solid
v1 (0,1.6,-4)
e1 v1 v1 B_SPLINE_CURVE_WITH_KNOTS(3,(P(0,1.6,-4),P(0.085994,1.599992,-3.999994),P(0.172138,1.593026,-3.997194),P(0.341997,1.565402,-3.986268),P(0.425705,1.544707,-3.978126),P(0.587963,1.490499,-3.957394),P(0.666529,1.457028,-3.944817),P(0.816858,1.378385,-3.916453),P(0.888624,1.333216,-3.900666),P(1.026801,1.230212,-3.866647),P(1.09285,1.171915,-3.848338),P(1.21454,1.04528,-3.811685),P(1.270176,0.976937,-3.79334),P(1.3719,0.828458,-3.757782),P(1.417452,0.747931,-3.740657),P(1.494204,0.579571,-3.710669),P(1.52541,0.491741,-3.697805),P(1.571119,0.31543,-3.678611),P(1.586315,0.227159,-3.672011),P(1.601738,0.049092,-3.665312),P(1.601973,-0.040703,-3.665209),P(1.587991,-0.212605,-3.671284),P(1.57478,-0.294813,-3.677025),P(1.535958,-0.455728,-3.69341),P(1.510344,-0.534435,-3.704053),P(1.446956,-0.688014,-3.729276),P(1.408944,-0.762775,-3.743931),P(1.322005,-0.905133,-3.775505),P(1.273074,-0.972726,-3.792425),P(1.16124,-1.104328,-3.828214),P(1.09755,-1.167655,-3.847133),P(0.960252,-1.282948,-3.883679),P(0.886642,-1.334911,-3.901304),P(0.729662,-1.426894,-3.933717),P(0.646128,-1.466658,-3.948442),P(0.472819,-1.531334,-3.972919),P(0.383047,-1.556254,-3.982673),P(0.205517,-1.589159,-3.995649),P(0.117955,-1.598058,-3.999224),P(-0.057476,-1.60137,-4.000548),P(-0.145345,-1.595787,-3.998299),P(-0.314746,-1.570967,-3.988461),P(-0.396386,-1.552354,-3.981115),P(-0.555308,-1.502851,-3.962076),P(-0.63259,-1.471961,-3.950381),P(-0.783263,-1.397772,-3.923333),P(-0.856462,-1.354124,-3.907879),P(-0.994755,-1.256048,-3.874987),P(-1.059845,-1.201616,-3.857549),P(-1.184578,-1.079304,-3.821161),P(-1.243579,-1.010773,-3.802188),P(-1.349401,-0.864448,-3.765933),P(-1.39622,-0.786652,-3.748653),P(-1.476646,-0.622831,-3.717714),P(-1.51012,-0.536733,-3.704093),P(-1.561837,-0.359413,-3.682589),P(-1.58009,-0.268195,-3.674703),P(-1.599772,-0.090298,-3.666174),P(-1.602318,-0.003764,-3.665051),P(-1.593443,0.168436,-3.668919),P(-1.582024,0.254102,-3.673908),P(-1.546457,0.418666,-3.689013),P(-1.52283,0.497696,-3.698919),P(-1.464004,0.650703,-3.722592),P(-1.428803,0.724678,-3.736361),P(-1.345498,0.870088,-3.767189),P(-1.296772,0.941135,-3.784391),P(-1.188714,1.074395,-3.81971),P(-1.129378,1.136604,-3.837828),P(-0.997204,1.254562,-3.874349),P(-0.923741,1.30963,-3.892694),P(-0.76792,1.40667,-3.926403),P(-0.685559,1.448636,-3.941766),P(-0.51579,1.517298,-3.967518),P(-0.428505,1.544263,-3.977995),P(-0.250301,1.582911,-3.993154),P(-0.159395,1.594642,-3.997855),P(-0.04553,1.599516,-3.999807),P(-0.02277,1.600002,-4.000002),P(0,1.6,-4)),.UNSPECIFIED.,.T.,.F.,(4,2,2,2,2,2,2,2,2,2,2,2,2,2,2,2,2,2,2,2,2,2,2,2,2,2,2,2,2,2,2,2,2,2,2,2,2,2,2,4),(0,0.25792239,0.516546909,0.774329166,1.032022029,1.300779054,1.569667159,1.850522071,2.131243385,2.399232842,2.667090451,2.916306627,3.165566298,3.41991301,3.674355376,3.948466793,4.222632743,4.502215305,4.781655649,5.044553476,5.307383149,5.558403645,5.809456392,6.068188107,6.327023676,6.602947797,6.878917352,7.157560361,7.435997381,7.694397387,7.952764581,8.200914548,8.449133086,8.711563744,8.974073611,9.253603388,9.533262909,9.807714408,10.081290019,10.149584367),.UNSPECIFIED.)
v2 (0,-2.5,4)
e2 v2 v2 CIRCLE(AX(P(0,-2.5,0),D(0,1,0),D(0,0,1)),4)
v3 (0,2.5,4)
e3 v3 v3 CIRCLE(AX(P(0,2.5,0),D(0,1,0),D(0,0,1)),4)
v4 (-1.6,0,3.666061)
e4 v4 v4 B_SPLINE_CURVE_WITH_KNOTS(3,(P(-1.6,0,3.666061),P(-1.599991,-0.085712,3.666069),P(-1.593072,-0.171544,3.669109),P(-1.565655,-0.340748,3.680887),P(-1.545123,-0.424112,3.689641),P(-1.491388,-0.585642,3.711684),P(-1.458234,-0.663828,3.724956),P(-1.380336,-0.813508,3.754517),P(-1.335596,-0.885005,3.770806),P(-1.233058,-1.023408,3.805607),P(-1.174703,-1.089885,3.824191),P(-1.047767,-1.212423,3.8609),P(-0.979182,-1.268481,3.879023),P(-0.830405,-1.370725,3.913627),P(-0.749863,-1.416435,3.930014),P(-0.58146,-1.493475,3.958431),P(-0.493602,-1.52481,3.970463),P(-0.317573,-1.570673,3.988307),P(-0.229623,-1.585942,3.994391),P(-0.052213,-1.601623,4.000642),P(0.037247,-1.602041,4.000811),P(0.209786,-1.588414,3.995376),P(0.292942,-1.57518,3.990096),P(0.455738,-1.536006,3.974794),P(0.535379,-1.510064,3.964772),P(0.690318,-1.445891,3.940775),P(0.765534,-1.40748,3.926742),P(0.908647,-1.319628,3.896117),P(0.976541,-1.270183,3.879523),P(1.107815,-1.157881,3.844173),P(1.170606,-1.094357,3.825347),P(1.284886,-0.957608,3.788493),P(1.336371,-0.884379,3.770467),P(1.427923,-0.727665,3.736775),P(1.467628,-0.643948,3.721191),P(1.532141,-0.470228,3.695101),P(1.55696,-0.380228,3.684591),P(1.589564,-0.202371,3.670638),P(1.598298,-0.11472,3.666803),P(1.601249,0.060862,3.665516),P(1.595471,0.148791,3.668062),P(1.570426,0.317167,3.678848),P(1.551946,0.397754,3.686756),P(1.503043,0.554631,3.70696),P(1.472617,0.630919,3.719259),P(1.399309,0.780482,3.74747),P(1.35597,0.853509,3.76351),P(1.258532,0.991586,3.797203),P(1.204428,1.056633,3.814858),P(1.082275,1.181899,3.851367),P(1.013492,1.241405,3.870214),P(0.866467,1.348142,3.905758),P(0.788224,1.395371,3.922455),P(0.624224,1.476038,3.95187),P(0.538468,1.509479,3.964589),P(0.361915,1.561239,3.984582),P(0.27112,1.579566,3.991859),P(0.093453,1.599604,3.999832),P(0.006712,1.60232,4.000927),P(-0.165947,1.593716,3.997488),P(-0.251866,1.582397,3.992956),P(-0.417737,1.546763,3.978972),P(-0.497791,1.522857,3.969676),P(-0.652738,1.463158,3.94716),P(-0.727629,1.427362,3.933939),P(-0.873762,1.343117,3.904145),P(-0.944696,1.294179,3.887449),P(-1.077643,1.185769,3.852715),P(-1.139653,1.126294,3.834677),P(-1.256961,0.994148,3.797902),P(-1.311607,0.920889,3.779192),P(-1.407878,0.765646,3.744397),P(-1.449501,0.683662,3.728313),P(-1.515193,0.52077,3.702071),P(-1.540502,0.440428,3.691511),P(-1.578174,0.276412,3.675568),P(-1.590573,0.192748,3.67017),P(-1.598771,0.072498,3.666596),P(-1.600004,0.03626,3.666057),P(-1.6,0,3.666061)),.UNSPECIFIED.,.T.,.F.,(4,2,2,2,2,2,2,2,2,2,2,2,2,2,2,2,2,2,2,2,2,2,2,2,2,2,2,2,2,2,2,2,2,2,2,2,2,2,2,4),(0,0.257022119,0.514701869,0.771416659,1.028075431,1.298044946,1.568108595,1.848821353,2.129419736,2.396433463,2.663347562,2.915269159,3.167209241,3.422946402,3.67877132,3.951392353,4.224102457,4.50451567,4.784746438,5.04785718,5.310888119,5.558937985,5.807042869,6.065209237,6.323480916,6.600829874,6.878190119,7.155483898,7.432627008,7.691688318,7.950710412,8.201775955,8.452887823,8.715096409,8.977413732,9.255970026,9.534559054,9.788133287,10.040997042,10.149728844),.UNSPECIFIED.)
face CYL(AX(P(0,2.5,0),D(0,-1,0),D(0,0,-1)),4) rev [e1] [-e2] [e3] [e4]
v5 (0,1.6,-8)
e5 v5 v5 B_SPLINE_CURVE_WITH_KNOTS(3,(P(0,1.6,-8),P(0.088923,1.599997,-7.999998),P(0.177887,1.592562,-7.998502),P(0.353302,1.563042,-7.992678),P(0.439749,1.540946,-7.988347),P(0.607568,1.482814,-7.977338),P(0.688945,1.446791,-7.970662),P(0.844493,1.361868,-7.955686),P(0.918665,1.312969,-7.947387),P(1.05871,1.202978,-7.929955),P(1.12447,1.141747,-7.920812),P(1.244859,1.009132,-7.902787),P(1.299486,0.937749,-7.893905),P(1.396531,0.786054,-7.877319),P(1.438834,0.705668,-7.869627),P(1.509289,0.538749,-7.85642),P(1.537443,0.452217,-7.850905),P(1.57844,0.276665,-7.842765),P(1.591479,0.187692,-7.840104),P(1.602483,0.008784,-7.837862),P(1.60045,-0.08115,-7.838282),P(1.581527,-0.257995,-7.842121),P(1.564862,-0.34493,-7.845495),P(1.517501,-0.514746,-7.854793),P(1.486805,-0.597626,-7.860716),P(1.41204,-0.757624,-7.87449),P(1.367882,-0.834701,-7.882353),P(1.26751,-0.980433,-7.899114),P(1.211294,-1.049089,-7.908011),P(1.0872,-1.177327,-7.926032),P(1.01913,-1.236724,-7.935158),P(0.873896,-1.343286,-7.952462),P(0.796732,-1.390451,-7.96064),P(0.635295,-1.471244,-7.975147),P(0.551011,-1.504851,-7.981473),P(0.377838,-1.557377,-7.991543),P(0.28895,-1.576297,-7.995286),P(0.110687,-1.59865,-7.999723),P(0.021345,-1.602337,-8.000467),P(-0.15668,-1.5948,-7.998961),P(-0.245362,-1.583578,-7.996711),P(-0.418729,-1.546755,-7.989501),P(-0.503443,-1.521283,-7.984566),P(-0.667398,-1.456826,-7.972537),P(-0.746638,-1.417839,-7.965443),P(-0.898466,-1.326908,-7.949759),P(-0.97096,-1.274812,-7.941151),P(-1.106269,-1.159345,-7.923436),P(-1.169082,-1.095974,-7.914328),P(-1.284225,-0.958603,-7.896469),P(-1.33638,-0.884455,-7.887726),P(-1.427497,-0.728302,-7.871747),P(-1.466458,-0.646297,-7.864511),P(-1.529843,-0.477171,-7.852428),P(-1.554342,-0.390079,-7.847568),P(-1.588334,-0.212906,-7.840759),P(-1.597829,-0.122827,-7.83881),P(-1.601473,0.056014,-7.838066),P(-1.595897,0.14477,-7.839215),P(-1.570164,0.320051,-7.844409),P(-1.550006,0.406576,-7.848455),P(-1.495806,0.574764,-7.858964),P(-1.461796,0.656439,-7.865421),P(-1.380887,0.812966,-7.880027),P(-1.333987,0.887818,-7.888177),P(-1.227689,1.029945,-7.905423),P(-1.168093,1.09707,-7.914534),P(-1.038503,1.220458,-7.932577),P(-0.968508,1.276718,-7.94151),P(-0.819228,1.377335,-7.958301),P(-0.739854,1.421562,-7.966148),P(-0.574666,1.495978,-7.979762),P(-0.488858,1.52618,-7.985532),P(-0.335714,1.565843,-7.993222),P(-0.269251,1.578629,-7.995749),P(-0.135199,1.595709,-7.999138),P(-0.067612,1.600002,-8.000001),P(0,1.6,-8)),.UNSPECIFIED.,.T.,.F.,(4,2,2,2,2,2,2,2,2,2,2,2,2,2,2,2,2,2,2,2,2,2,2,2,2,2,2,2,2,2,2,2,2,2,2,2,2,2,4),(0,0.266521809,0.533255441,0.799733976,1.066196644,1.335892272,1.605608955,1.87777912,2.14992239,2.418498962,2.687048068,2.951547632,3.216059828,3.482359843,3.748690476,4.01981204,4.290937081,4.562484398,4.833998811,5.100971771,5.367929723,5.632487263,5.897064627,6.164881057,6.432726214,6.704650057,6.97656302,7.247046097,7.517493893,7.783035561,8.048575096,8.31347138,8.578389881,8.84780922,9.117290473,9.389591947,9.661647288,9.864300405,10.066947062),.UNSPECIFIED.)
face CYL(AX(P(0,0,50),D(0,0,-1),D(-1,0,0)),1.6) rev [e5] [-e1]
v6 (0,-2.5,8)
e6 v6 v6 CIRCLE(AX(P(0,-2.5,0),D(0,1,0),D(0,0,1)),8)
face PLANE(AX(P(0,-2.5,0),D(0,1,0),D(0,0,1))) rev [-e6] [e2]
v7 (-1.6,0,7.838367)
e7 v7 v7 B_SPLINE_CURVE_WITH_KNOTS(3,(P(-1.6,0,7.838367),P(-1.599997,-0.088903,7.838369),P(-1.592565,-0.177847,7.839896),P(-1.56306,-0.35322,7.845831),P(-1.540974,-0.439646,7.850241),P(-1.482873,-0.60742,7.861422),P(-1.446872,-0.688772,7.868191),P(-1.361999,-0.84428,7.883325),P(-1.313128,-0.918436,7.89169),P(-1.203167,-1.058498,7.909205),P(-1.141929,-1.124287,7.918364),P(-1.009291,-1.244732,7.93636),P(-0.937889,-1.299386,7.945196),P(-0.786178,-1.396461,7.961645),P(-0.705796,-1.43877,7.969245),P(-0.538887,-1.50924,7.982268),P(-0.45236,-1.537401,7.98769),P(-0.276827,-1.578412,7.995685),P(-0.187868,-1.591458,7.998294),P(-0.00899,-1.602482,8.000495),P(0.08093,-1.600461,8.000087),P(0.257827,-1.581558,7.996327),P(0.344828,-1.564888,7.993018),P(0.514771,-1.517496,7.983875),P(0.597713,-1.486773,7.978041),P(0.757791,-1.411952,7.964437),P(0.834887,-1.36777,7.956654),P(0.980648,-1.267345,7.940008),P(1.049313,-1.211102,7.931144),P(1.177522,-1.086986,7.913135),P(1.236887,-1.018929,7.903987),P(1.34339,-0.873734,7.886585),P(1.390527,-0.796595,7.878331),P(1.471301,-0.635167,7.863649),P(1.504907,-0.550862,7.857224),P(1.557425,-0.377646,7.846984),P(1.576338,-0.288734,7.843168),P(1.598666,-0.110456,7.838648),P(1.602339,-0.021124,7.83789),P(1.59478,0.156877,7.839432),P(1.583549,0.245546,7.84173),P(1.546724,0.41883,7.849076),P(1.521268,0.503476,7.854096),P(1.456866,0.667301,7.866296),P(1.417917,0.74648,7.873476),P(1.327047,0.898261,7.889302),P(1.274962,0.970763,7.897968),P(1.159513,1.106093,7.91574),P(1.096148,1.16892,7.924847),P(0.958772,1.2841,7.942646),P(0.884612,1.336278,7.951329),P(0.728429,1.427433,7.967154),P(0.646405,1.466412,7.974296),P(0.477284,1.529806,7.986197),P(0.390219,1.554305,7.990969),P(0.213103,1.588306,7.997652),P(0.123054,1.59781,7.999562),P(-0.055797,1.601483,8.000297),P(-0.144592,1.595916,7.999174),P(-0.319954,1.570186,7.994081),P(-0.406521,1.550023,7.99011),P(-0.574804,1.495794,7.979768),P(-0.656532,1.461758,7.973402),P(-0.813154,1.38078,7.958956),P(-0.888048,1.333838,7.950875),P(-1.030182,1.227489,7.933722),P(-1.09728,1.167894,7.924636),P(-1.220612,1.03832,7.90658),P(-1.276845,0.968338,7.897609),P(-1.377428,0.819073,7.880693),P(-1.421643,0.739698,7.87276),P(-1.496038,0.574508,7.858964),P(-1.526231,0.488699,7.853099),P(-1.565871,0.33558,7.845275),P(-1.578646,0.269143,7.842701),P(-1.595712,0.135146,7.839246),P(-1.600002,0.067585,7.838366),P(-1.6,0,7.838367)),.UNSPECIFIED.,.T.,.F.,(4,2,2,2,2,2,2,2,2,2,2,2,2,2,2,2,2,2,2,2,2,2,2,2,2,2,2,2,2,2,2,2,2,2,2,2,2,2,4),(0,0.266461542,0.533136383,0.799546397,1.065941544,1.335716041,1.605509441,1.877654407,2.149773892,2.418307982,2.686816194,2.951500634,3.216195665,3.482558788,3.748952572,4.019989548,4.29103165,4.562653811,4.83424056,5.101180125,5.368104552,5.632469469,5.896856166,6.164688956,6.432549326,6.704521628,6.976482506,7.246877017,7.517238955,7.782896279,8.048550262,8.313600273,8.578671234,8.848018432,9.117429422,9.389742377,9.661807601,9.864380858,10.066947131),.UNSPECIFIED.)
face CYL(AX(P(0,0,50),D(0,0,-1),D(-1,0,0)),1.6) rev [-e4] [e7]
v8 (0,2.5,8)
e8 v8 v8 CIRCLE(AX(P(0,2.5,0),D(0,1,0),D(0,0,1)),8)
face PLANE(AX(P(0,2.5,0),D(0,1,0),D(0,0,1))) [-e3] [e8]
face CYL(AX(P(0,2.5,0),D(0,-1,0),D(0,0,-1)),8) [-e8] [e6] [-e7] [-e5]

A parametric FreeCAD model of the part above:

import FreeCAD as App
import Part
import Sketcher

V = App.Vector
Q = App.Units.Quantity

doc = App.newDocument("Part")
body = doc.addObject("PartDesign::Body", "Body")

# Sketch on XZ plane
sketch1 = body.newObject("Sketcher::SketchObject", "Sketch")
sketch1.AttachmentSupport = (doc.getObject("XZ_Plane"), [""])
sketch1.MapMode = "FlatFace"
sketch1.addGeometry([
    Part.Circle(V(0, 0, 0), V(0, 0, 1), 8),
    Part.Circle(V(0, 0, 0), V(0, 0, 1), 4),
], False)
sketch1.addConstraint([
    Sketcher.Constraint("Coincident", 0, 3, -1, 1),
    Sketcher.Constraint("Coincident", 1, 3, -1, 1),
    Sketcher.Constraint("Diameter", 0, Q("16 mm")),
    Sketcher.Constraint("Diameter", 1, Q("8 mm")),
])
pad1 = body.newObject("PartDesign::Pad", "Pad")
pad1.Profile = sketch1
pad1.Length = 2.5
pad1.Reversed = True

# Sketch on XZ plane
sketch2 = body.newObject("Sketcher::SketchObject", "Sketch001")
sketch2.AttachmentSupport = (doc.getObject("XZ_Plane"), [""])
sketch2.MapMode = "FlatFace"
sketch2.AttachmentOffset = App.Placement(V(0, 0, 2.5), App.Rotation())
sketch2.addGeometry([
    Part.Circle(V(0, 0, 0), V(0, 0, 1), 8),
    Part.Circle(V(0, 0, 0), V(0, 0, 1), 4),
], False)
sketch2.addConstraint([
    Sketcher.Constraint("Coincident", 0, 3, -1, 1),
    Sketcher.Constraint("Coincident", 1, 3, -1, 1),
    Sketcher.Constraint("Diameter", 0, Q("16 mm")),
    Sketcher.Constraint("Diameter", 1, Q("8 mm")),
])
pad2 = body.newObject("PartDesign::Pad", "Pad001")
pad2.Profile = sketch2
pad2.Length = 2.5
pad2.Reversed = True

# Sketch on XY plane
sketch3 = body.newObject("Sketcher::SketchObject", "Sketch002")
sketch3.AttachmentSupport = (doc.getObject("XY_Plane"), [""])
sketch3.MapMode = "FlatFace"
sketch3.addGeometry(Part.Circle(V(0, 0, 0), V(0, 0, 1), 1.6), False)
sketch3.addConstraint([
    Sketcher.Constraint("Coincident", 0, 3, -1, 1),
    Sketcher.Constraint("Diameter", 0, Q("3.2 mm")),
])
pocket1 = body.newObject("PartDesign::Pocket", "Pocket")
pocket1.Profile = sketch3
pocket1.Type = "ThroughAll"
pocket1.Midplane = True

doc.recompute()
